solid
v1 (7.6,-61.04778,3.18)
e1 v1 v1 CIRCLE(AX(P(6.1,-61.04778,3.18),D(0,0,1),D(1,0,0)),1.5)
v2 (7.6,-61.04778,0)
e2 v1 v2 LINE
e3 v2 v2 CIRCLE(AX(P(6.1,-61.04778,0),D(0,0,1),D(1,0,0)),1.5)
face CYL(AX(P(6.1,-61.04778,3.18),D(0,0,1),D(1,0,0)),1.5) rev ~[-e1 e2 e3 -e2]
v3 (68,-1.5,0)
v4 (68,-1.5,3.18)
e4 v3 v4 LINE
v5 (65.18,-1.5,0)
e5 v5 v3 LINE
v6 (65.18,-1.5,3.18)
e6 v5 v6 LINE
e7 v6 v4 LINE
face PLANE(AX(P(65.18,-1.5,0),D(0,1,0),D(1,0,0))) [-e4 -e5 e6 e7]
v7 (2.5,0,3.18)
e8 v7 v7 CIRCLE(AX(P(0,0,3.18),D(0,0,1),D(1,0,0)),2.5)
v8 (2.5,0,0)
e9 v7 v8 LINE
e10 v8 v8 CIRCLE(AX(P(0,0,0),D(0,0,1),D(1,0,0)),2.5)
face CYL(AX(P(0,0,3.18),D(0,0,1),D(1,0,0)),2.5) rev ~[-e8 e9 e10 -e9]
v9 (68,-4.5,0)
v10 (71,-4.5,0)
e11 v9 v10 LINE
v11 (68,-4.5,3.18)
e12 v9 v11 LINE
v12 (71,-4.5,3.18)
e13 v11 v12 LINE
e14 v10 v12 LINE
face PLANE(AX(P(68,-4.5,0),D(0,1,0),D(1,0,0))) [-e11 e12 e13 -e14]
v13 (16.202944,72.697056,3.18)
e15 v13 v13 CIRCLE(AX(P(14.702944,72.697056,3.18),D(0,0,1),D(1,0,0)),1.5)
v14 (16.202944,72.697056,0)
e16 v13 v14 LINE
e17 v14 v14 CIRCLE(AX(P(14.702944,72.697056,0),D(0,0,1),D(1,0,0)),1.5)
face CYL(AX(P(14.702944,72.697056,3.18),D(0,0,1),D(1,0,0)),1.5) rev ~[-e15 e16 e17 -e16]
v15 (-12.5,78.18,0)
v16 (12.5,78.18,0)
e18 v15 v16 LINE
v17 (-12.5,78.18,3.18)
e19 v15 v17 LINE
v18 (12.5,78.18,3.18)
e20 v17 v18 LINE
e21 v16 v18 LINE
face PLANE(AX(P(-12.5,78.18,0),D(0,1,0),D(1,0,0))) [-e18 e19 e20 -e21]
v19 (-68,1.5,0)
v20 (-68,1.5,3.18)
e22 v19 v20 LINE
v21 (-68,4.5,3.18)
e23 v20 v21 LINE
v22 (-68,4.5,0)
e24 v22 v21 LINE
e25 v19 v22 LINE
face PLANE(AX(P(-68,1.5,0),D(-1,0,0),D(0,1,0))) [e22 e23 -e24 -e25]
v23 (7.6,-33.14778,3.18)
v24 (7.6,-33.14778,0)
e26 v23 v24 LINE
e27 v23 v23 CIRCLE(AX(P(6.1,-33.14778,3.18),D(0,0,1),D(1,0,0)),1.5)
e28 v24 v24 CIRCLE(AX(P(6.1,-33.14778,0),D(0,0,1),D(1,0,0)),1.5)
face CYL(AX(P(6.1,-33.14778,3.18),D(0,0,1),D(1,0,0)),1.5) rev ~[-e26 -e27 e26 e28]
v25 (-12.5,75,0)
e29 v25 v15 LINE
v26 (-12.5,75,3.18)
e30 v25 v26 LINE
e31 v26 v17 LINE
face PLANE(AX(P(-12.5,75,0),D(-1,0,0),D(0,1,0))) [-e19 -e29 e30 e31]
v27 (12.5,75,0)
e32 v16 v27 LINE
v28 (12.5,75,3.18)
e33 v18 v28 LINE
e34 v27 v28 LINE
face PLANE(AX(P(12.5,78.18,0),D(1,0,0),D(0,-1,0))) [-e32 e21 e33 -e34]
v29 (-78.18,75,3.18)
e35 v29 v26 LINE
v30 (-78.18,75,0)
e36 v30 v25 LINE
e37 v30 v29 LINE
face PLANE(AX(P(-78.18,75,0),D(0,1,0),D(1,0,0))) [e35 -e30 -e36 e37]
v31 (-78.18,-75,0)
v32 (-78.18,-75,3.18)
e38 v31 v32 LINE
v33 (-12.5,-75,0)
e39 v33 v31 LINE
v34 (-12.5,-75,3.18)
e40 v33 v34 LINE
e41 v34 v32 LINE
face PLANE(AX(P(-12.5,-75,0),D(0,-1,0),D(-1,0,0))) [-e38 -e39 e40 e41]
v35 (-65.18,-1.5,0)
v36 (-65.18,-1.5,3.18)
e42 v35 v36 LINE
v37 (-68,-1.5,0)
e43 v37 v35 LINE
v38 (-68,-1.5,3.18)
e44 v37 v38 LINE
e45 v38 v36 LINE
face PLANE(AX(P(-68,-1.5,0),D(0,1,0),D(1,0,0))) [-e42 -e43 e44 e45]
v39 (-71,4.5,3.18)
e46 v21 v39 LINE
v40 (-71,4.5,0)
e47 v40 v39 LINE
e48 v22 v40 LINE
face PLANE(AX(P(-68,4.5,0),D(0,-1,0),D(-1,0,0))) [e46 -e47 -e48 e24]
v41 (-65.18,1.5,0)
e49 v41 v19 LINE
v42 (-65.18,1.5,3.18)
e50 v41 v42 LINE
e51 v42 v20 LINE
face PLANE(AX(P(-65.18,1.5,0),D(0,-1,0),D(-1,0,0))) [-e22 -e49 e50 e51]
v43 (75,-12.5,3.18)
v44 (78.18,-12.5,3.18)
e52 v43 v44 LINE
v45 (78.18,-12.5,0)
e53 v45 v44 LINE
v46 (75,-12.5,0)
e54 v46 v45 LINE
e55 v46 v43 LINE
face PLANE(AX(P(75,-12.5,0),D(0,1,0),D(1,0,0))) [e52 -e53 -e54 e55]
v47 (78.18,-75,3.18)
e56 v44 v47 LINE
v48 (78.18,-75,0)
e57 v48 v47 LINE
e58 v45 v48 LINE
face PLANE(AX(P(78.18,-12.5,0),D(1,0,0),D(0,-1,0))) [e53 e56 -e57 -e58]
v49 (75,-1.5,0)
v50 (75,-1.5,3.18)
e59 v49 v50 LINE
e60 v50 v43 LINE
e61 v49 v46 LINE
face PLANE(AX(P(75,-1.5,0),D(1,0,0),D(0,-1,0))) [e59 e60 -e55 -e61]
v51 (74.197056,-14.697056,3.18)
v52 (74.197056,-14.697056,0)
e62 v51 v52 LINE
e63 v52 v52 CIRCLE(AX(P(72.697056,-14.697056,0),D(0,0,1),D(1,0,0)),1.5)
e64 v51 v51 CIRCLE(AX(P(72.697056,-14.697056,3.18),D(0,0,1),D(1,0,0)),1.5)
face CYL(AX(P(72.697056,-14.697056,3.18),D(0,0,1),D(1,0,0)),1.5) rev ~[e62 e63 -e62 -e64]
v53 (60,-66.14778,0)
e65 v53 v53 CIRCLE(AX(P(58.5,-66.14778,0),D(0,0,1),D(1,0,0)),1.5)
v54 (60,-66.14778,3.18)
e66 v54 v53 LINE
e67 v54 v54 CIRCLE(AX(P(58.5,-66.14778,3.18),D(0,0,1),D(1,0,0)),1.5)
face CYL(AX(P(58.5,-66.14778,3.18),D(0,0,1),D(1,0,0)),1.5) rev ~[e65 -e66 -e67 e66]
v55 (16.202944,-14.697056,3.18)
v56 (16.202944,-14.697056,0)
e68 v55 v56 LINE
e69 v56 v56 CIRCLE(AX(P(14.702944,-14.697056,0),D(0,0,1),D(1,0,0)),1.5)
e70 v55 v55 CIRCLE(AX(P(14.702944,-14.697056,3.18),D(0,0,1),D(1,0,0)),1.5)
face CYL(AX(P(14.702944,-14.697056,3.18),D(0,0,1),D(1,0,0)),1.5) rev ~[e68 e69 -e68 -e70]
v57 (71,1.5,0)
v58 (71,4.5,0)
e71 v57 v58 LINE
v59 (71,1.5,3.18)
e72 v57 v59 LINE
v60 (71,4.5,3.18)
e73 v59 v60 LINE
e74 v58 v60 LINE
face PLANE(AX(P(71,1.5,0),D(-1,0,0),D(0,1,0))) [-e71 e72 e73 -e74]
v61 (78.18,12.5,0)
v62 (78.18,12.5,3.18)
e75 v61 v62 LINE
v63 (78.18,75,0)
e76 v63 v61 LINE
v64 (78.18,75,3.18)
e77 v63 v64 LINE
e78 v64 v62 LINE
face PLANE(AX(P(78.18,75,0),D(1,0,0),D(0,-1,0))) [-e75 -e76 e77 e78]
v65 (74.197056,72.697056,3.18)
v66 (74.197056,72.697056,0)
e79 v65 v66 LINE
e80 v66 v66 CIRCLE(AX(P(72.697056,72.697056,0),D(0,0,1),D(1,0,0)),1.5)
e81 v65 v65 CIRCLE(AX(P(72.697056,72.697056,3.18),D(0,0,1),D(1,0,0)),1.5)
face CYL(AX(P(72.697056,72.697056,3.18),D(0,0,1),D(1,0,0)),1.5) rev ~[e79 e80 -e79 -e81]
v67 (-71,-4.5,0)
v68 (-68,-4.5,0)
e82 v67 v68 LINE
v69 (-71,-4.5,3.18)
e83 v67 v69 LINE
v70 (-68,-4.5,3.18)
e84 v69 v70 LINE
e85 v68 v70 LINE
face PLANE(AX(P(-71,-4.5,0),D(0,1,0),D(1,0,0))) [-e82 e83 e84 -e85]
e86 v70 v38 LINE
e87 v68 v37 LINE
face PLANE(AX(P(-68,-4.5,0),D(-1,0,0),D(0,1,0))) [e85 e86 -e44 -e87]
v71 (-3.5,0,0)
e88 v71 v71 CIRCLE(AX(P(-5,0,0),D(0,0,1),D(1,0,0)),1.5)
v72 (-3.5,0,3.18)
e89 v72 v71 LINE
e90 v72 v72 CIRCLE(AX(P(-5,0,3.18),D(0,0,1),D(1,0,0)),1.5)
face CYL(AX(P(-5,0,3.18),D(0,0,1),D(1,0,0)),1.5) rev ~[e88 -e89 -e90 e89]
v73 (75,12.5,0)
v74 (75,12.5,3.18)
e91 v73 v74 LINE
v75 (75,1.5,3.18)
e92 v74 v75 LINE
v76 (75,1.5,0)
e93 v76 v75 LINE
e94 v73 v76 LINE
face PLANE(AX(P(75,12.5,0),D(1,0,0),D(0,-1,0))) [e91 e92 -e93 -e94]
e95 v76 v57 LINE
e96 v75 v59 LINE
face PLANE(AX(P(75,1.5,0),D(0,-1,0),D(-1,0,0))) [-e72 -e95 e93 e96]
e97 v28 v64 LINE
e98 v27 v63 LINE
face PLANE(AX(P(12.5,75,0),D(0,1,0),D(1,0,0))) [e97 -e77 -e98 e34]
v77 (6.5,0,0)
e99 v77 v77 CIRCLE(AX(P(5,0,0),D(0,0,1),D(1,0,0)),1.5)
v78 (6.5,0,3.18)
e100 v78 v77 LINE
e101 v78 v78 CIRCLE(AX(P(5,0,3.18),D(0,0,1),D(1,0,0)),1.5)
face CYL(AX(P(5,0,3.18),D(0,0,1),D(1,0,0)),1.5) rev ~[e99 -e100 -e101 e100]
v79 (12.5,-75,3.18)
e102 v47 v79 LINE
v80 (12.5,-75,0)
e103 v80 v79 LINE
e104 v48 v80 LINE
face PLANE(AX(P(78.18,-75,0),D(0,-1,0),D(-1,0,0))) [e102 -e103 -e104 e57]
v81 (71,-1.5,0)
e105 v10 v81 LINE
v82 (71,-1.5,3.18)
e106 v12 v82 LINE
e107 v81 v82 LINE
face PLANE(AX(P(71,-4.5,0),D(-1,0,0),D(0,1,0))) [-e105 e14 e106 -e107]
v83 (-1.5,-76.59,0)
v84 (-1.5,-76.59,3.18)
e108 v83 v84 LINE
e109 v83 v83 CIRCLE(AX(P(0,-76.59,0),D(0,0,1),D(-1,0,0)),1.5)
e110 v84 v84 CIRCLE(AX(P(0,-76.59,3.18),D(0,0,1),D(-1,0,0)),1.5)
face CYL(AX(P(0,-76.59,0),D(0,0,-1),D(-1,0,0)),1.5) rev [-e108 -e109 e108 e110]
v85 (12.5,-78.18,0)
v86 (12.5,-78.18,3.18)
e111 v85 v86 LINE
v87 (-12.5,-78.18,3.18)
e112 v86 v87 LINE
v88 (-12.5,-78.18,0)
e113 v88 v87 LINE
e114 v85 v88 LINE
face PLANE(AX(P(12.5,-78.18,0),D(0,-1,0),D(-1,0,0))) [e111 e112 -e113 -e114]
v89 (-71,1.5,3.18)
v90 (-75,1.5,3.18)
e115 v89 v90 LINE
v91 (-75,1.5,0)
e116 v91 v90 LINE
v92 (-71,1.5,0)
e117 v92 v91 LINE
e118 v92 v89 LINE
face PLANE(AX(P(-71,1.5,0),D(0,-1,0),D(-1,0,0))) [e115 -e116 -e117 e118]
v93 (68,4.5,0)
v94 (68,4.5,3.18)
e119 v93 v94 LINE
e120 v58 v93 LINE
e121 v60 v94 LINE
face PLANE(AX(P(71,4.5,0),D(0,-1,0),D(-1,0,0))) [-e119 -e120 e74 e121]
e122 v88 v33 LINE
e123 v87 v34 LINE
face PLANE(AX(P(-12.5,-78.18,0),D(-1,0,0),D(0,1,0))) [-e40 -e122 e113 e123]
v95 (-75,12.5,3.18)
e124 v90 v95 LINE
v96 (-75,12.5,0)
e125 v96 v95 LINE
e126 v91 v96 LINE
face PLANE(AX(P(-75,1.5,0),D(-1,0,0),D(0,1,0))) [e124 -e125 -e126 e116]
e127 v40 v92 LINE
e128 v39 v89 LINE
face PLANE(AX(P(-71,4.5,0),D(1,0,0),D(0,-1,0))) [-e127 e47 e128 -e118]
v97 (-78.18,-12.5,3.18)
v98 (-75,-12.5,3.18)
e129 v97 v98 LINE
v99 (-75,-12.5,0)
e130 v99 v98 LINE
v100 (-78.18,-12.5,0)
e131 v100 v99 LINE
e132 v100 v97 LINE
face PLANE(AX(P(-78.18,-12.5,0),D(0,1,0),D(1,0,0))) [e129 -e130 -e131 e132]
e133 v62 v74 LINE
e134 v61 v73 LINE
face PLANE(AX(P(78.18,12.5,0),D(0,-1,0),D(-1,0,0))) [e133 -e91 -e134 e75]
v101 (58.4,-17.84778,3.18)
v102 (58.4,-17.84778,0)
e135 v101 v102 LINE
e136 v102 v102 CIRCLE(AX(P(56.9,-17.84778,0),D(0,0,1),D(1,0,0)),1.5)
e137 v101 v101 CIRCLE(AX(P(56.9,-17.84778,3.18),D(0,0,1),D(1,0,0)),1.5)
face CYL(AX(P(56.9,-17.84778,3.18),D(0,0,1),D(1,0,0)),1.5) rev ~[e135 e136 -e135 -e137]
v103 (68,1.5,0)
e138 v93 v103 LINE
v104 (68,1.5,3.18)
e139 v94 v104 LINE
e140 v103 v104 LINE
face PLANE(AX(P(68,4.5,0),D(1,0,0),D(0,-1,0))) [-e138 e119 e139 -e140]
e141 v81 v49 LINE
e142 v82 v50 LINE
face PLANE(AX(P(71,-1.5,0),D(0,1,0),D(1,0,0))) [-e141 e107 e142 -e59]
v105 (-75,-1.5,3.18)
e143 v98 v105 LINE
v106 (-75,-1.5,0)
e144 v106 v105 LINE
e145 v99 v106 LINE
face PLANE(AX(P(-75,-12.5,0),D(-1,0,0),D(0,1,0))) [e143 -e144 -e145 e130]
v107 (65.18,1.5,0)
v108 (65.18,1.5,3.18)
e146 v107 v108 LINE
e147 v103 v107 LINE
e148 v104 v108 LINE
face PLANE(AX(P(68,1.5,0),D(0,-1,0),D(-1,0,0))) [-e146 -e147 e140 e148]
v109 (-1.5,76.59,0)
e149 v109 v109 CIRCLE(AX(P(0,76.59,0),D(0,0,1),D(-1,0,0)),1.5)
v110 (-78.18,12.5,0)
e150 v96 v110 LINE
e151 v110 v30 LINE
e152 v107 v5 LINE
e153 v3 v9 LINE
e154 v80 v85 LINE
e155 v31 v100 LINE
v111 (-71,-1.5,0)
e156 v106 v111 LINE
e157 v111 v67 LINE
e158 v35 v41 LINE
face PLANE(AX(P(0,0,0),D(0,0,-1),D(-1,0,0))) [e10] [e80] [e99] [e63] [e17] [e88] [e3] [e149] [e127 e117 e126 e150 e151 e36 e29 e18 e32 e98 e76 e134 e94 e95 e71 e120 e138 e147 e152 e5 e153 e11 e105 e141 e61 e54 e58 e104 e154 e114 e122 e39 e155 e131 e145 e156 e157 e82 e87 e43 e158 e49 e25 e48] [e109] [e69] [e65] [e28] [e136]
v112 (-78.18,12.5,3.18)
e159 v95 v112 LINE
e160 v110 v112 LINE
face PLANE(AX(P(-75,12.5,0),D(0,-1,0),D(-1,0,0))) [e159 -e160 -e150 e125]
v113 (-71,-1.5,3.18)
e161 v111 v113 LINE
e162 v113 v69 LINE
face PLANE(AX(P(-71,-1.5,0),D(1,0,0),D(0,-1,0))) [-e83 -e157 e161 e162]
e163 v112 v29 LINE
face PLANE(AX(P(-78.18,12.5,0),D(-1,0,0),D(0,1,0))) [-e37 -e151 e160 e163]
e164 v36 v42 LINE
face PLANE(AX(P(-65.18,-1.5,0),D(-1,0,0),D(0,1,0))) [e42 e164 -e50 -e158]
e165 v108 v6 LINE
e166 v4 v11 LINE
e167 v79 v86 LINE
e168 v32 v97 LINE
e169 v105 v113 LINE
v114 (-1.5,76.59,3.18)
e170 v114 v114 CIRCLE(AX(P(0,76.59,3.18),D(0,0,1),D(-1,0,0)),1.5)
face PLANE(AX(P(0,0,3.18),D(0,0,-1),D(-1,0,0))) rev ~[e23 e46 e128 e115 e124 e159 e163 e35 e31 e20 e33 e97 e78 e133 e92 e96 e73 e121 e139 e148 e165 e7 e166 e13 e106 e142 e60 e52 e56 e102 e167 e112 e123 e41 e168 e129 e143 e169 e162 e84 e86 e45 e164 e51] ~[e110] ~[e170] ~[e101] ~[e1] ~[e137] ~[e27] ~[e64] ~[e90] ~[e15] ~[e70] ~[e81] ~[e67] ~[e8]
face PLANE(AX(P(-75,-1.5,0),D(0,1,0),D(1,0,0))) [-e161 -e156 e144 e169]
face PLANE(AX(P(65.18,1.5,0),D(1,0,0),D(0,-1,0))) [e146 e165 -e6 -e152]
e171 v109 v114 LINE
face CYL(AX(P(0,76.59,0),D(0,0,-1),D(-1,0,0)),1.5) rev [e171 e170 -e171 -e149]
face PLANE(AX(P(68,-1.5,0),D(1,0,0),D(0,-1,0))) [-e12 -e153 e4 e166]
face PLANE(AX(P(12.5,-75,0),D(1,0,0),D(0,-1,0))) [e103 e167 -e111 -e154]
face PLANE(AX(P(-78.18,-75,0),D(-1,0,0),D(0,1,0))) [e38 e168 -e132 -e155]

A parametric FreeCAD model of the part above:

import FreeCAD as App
import Part
import Sketcher
from FreeCAD import Vector


def add_polygon(sketch, points):
    """Adds a closed chain of lines whose ends are joined by coincident constraints."""
    first, n = sketch.GeometryCount, len(points)
    for a, b in zip(points, points[1:] + points[:1]):
        sketch.addGeometry(Part.LineSegment(App.Vector(*a, 0), App.Vector(*b, 0)), False)
    for i in range(n):
        sketch.addConstraint(Sketcher.Constraint("Coincident", first + i, 2, first + (i + 1) % n, 1))

doc = App.newDocument("Part")
body = doc.addObject("PartDesign::Body", "Body")

# Sketch on XY plane
sketch1 = body.newObject("Sketcher::SketchObject", "Sketch")
sketch1.AttachmentSupport = (doc.getObject("XY_Plane"), [""])
sketch1.MapMode = "FlatFace"
add_polygon(sketch1, [(-12.5, 75), (-78.2, 75), (-78.2, 12.5), (-75, 12.5), (-75, 1.5), (-71, 1.5), (-71, 4.5), (-68, 4.5), (-68, 1.5), (-65.2, 1.5), (-65.2, -1.5), (-68, -1.5), (-68, -4.5), (-71, -4.5), (-71, -1.5), (-75, -1.5), (-75, -12.5), (-78.2, -12.5), (-78.2, -75), (-12.5, -75), (-12.5, -78.2), (12.5, -78.2), (12.5, -75), (78.2, -75), (78.2, -12.5), (75, -12.5), (75, -1.5), (71, -1.5), (71, -4.5), (68, -4.5), (68, -1.5), (65.2, -1.5), (65.2, 1.5), (68, 1.5), (68, 4.5), (71, 4.5), (71, 1.5), (75, 1.5), (75, 12.5), (78.2, 12.5), (78.2, 75), (12.5, 75), (12.5, 78.2), (-12.5, 78.2)])  # lines 0-43
sketch1.addGeometry(Part.Circle(Vector(0, -76.6, 0), Vector(0, 0, 1), 1.5), False)  # 44
sketch1.addGeometry(Part.Circle(Vector(0, 76.6, 0), Vector(0, 0, 1), 1.5), False)  # 45
sketch1.addConstraint([
    Sketcher.Constraint("Horizontal", 0),
    Sketcher.Constraint("Vertical", 1),
    Sketcher.Constraint("Horizontal", 2),
    Sketcher.Constraint("Vertical", 3),
    Sketcher.Constraint("Horizontal", 4),
    Sketcher.Constraint("Vertical", 5),
    Sketcher.Constraint("Horizontal", 6),
    Sketcher.Constraint("Vertical", 7),
    Sketcher.Constraint("Horizontal", 8),
    Sketcher.Constraint("Vertical", 9),
    Sketcher.Constraint("Horizontal", 10),
    Sketcher.Constraint("Vertical", 11),
    Sketcher.Constraint("Horizontal", 12),
    Sketcher.Constraint("Vertical", 13),
    Sketcher.Constraint("Horizontal", 14),
    Sketcher.Constraint("Vertical", 15),
    Sketcher.Constraint("Horizontal", 16),
    Sketcher.Constraint("Vertical", 17),
    Sketcher.Constraint("Horizontal", 18),
    Sketcher.Constraint("Vertical", 19),
    Sketcher.Constraint("Horizontal", 20),
    Sketcher.Constraint("Vertical", 21),
    Sketcher.Constraint("Horizontal", 22),
    Sketcher.Constraint("Vertical", 23),
    Sketcher.Constraint("Horizontal", 24),
    Sketcher.Constraint("Vertical", 25),
    Sketcher.Constraint("Horizontal", 26),
    Sketcher.Constraint("Vertical", 27),
    Sketcher.Constraint("Horizontal", 28),
    Sketcher.Constraint("Vertical", 29),
    Sketcher.Constraint("Horizontal", 30),
    Sketcher.Constraint("Vertical", 31),
    Sketcher.Constraint("Horizontal", 32),
    Sketcher.Constraint("Vertical", 33),
    Sketcher.Constraint("Horizontal", 34),
    Sketcher.Constraint("Vertical", 35),
    Sketcher.Constraint("Horizontal", 36),
    Sketcher.Constraint("Vertical", 37),
    Sketcher.Constraint("Horizontal", 38),
    Sketcher.Constraint("Vertical", 39),
    Sketcher.Constraint("Horizontal", 40),
    Sketcher.Constraint("Vertical", 41),
    Sketcher.Constraint("Horizontal", 42),
    Sketcher.Constraint("Vertical", 43),
    Sketcher.Constraint("Equal", 44, 45),
    Sketcher.Constraint("Symmetric", 44, 3, 45, 3, -1, 1),
    Sketcher.Constraint("Symmetric", 0, 2, 22, 2, -1, 1),
    Sketcher.Constraint("Symmetric", 2, 2, 24, 2, -1, 1),
    Sketcher.Constraint("Symmetric", 4, 2, 26, 2, -1, 1),
    Sketcher.Constraint("Symmetric", 6, 2, 28, 2, -1, 1),
    Sketcher.Constraint("Symmetric", 8, 2, 30, 2, -1, 1),
    Sketcher.Constraint("Symmetric", 10, 2, 32, 2, -1, 1),
    Sketcher.Constraint("Symmetric", 12, 2, 34, 2, -1, 1),
    Sketcher.Constraint("Symmetric", 14, 2, 36, 2, -1, 1),
    Sketcher.Constraint("Symmetric", 16, 2, 38, 2, -1, 1),
    Sketcher.Constraint("Symmetric", 18, 2, 40, 2, -1, 1),
    Sketcher.Constraint("Symmetric", 20, 2, 42, 2, -1, 1),
    Sketcher.Constraint("Symmetric", 18, 2, 21, 2, -2),
    Sketcher.Constraint("Symmetric", 16, 2, 23, 2, -2),
    Sketcher.Constraint("Symmetric", 14, 2, 25, 2, -2),
    Sketcher.Constraint("Symmetric", 12, 2, 27, 2, -2),
    Sketcher.Constraint("Symmetric", 10, 2, 29, 2, -2),
    Sketcher.Constraint("PointOnObject", 44, 3, -2),
    Sketcher.Constraint("Horizontal", 4, 2, 7, 2),
    Sketcher.Constraint("Equal", 34, 5),
    Sketcher.Constraint("Equal", 7, 9),
    Sketcher.Constraint("Equal", 38, 19),
    Sketcher.Constraint("Diameter", 44, 3.0),
    Sketcher.Constraint("DistanceX", 4, 1, 4, 2, 4.0),
    Sketcher.Constraint("DistanceX", 6, 1, 6, 2, 3.0),
    Sketcher.Constraint("DistanceX", 20, 1, 20, 2, 25.0),
    Sketcher.Constraint("DistanceY", 3, 2, 3, 1, 11.0),
    Sketcher.Constraint("DistanceY", 1, 2, 1, 1, 62.5),
    Sketcher.Constraint("DistanceX", 2, 2, -1, 1, 75.0),
    Sketcher.Constraint("DistanceX", 0, 2, 0, 1, 65.68),
    Sketcher.Constraint("DistanceX", 8, 1, 8, 2, 2.82),
    Sketcher.Constraint("DistanceY", 44, 3, -1, 1, 76.59),
])
pad1 = body.newObject("PartDesign::Pad", "Pad")
pad1.Profile = sketch1
pad1.Length = 3.18

# Sketch on XY plane
sketch2 = body.newObject("Sketcher::SketchObject", "Sketch001")
sketch2.AttachmentSupport = (doc.getObject("XY_Plane"), [""])
sketch2.MapMode = "FlatFace"
sketch2.AttachmentOffset = App.Placement(Vector(0, 0, 3.18), App.Rotation())
sketch2.addGeometry([
    Part.Circle(Vector(0, 0, 0), Vector(0, 0, 1), 2.5),
    Part.Circle(Vector(-5, 0, 0), Vector(0, 0, 1), 1.5),
    Part.Circle(Vector(5, 0, 0), Vector(0, 0, 1), 1.5),
], False)
sketch2.addConstraint([
    Sketcher.Constraint("Coincident", 0, 3, -1, 1),
    Sketcher.Constraint("Equal", 1, 2),
    Sketcher.Constraint("Symmetric", 1, 3, 2, 3, -1, 1),
    Sketcher.Constraint("PointOnObject", 1, 3, -1),
    Sketcher.Constraint("Diameter", 0, 5.0),
    Sketcher.Constraint("Diameter", 1, 3.0),
    Sketcher.Constraint("DistanceX", 1, 3, -1, 1, 5.0),
])
pocket1 = body.newObject("PartDesign::Pocket", "Pocket")
pocket1.Profile = sketch2
pocket1.Length = 20

# Sketch on XY plane
sketch3 = body.newObject("Sketcher::SketchObject", "Sketch002")
sketch3.AttachmentSupport = (doc.getObject("XY_Plane"), [""])
sketch3.MapMode = "FlatFace"
sketch3.AttachmentOffset = App.Placement(Vector(0, 0, 3.18), App.Rotation())
sketch3.addGeometry([
    Part.Circle(Vector(56.9, -17.8, 0), Vector(0, 0, 1), 1.5),
    Part.Circle(Vector(58.5, -66.1, 0), Vector(0, 0, 1), 1.5),
    Part.Circle(Vector(6.1, -33.1, 0), Vector(0, 0, 1), 1.5),
    Part.Circle(Vector(6.1, -61, 0), Vector(0, 0, 1), 1.5),
], False)
sketch3.addConstraint([
    Sketcher.Constraint("Equal", 0, 1),
    Sketcher.Constraint("Equal", 1, 2),
    Sketcher.Constraint("Equal", 2, 3),
    Sketcher.Constraint("Vertical", 2, 3, 3, 3),
    Sketcher.Constraint("Diameter", 0, 3.0),
    Sketcher.Constraint("DistanceY", 1, 3, 2, 3, 33.0),
    Sketcher.Constraint("DistanceX", -1, 1, 0, 3, 56.9),
    Sketcher.Constraint("DistanceX", -1, 1, 1, 3, 58.5),
    Sketcher.Constraint("DistanceX", -1, 1, 2, 3, 6.1),
    Sketcher.Constraint("DistanceY", 1, 3, 0, 3, 48.3),
    Sketcher.Constraint("DistanceY", 3, 3, 2, 3, 27.9),
    Sketcher.Constraint("DistanceY", 0, 3, -1, 1, 17.84778),
])
pocket2 = body.newObject("PartDesign::Pocket", "Pocket001")
pocket2.Profile = sketch3
pocket2.Length = 20

# Sketch on XY plane
sketch4 = body.newObject("Sketcher::SketchObject", "Sketch003")
sketch4.AttachmentSupport = (doc.getObject("XY_Plane"), [""])
sketch4.MapMode = "FlatFace"
sketch4.AttachmentOffset = App.Placement(Vector(0, 0, 3.18), App.Rotation())
sketch4.addGeometry([
    Part.Circle(Vector(14.7, 72.7, 0), Vector(0, 0, 1), 1.5),
    Part.Circle(Vector(72.7, 72.7, 0), Vector(0, 0, 1), 1.5),
    Part.Circle(Vector(14.7, -14.7, 0), Vector(0, 0, 1), 1.5),
    Part.Circle(Vector(72.7, -14.7, 0), Vector(0, 0, 1), 1.5),
], False)
sketch4.addConstraint([
    Sketcher.Constraint("Equal", 0, 1),
    Sketcher.Constraint("Equal", 1, 2),
    Sketcher.Constraint("Equal", 2, 3),
    Sketcher.Constraint("Horizontal", 0, 3, 1, 3),
    Sketcher.Constraint("Horizontal", 2, 3, 3, 3),
    Sketcher.Constraint("Vertical", 0, 3, 2, 3),
    Sketcher.Constraint("Vertical", 1, 3, 3, 3),
    Sketcher.Constraint("Diameter", 0, 3.0),
    Sketcher.Constraint("DistanceX", -1, 1, 0, 3, 14.702944),
    Sketcher.Constraint("DistanceY", -1, 1, 0, 3, 72.697056),
    Sketcher.Constraint("DistanceX", -1, 1, 1, 3, 72.697056),
    Sketcher.Constraint("DistanceY", 2, 3, -1, 1, 14.697056),
])
pocket3 = body.newObject("PartDesign::Pocket", "Pocket002")
pocket3.Profile = sketch4
pocket3.Length = 4

doc.recompute()
